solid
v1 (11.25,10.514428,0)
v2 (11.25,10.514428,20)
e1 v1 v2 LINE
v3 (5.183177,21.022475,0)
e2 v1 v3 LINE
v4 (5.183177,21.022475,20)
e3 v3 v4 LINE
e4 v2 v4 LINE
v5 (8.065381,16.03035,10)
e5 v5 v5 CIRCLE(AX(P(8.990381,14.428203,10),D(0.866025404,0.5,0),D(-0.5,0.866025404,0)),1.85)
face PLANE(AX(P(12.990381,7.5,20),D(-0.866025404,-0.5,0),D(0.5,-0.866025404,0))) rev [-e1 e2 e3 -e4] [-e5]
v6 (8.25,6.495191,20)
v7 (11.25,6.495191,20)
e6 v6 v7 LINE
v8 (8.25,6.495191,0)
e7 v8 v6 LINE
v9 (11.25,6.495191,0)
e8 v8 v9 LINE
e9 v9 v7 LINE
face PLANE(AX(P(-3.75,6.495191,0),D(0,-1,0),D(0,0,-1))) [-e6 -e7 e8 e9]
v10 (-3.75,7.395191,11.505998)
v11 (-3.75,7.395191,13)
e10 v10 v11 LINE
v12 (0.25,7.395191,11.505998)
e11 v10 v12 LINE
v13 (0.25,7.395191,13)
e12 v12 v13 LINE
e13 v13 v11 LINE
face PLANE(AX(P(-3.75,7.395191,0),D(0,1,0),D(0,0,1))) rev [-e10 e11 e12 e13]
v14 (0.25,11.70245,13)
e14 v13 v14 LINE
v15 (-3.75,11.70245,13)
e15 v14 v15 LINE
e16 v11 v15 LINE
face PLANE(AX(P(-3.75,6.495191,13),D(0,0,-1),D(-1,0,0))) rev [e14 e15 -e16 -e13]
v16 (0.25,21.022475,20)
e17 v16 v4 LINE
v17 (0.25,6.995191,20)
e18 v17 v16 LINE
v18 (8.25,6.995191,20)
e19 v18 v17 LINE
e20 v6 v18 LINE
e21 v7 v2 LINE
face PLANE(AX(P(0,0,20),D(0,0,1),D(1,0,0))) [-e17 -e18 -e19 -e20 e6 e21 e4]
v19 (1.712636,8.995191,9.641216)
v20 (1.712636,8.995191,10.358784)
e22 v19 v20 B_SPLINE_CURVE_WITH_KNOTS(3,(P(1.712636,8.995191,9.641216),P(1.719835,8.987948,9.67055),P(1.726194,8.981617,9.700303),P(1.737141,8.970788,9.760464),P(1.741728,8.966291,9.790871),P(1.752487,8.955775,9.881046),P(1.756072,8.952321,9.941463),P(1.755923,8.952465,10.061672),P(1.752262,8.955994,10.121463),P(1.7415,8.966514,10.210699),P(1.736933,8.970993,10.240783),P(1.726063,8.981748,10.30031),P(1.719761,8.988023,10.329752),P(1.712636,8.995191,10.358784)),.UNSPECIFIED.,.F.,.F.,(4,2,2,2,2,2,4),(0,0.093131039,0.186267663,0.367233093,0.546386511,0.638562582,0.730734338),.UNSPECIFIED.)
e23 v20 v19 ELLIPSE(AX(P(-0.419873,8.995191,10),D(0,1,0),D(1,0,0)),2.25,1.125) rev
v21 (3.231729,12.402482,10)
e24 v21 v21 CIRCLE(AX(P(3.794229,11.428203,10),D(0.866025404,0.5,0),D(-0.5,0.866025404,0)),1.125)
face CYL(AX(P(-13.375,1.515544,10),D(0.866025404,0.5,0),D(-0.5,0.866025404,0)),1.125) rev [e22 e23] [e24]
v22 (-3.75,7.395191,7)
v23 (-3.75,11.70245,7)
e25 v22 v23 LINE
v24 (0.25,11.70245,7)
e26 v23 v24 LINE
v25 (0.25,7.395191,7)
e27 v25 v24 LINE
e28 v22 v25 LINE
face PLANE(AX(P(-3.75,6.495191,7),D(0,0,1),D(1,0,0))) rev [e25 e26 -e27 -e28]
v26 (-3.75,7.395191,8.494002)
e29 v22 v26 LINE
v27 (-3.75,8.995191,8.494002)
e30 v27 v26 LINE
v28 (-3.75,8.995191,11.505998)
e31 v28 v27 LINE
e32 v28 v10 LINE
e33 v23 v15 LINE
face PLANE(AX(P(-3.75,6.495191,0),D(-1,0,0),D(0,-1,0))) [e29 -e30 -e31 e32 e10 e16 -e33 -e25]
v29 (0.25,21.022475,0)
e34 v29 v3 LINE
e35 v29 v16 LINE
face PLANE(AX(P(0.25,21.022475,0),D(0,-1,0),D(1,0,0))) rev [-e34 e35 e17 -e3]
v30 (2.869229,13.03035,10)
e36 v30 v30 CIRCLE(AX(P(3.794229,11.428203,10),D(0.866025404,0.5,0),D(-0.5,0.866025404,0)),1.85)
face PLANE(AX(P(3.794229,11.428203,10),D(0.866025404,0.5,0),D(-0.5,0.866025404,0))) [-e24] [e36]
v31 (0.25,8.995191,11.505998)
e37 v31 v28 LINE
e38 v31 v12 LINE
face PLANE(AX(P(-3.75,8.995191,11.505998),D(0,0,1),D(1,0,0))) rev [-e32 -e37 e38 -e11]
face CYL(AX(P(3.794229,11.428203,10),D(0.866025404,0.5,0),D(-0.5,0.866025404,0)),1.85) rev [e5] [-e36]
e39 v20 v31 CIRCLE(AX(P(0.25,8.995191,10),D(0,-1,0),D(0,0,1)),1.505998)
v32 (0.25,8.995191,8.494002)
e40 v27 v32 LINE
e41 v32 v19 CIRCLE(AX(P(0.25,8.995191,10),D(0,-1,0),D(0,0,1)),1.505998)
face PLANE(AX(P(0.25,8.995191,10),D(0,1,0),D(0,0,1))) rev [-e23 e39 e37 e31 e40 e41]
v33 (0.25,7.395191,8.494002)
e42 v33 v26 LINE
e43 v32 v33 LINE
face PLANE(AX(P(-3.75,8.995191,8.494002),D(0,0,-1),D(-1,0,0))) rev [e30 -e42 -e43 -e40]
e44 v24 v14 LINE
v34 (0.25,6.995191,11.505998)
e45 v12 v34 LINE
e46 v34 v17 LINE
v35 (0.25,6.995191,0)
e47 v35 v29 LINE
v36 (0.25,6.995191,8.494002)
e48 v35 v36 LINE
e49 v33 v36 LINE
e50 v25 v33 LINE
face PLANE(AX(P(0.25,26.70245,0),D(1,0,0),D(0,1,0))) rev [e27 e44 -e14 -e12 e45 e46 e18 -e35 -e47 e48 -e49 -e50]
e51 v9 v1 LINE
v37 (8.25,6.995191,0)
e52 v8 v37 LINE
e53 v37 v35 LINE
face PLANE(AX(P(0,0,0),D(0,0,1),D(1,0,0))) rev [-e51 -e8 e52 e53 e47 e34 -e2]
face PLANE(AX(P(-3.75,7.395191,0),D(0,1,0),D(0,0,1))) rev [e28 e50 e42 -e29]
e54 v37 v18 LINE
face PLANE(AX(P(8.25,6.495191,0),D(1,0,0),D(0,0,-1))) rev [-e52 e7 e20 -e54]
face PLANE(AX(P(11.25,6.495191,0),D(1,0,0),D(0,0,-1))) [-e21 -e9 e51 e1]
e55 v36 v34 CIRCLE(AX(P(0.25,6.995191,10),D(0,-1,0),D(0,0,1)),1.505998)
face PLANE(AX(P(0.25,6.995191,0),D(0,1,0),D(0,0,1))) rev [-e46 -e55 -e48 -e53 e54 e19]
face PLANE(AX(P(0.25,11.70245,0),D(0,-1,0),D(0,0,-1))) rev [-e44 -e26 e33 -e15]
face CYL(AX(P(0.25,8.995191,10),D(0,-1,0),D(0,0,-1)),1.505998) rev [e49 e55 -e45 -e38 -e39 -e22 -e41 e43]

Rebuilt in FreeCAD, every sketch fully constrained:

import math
import FreeCAD as App
import Part
import Sketcher
from FreeCAD import Vector
Q = App.Units.Quantity


def add_polygon(sketch, points):
    """Adds a closed chain of lines whose ends are joined by coincident constraints."""
    first, n = sketch.GeometryCount, len(points)
    for a, b in zip(points, points[1:] + points[:1]):
        sketch.addGeometry(Part.LineSegment(App.Vector(*a, 0), App.Vector(*b, 0)), False)
    for i in range(n):
        sketch.addConstraint(Sketcher.Constraint("Coincident", first + i, 2, first + (i + 1) % n, 1))

doc = App.newDocument("Part")
body = doc.addObject("PartDesign::Body", "Body")

# Sketch on XY plane
sketch1 = body.newObject("Sketcher::SketchObject", "Sketch")
sketch1.AttachmentSupport = (doc.getObject("XY_Plane"), [""])
sketch1.MapMode = "FlatFace"
add_polygon(sketch1, [(-12.5, 21.650635), (0, 0), (12.990381, 7.5), (0.490381, 29.150635)])  # lines 0-3
sketch1.addConstraint([
    Sketcher.Constraint("Coincident", 0, 2, -1, 1),
    Sketcher.Constraint("Perpendicular", 0, 1),
    Sketcher.Constraint("Perpendicular", 1, 2),
    Sketcher.Constraint("Perpendicular", 2, 3),
    Sketcher.Constraint("Angle", 0, Q("-60 deg")),
    Sketcher.Constraint("Distance", 0, Q("25 mm")),
    Sketcher.Constraint("Distance", 1, Q("15 mm")),
])
pad1 = body.newObject("PartDesign::Pad", "Pad")
pad1.Profile = sketch1
pad1.Length = 20

# Sketch on an angled plane
sketch2 = body.newObject("Sketcher::SketchObject", "Sketch001")
sketch2.Placement = App.Placement(Vector(12.990381, 7.5, 0), App.Rotation(Vector(0, 0, -1), Vector(-0.5, 0.866025404, 0), Vector(0.866025404, 0.5, 0), "ZXY"))
sketch2.addGeometry(Part.Circle(Vector(-10, 8, 0), Vector(0, 0, 1), 1.85), False)
sketch2.addConstraint([
    Sketcher.Constraint("Diameter", 0, Q("3.7 mm")),
    Sketcher.Constraint("DistanceX", 0, 3, -1, 1, Q("10 mm")),
    Sketcher.Constraint("DistanceY", -1, 1, 0, 3, Q("8 mm")),
])
pocket1 = body.newObject("PartDesign::Pocket", "Pocket")
pocket1.Profile = sketch2
pocket1.Length = 6

# Sketch on an angled plane
sketch3 = body.newObject("Sketcher::SketchObject", "Sketch002")
sketch3.Placement = App.Placement(Vector(7.794229, 4.5, 0), App.Rotation(Vector(0, 0, -1), Vector(-0.5, 0.866025404, 0), Vector(0.866025404, 0.5, 0), "ZXY"))
sketch3.addGeometry(Part.Circle(Vector(-10, 8, 0), Vector(0, 0, 1), 1.125), False)
sketch3.addConstraint([
    Sketcher.Constraint("Diameter", 0, Q("2.25 mm")),
    Sketcher.Constraint("DistanceX", 0, 3, -1, 1, Q("10 mm")),
    Sketcher.Constraint("DistanceY", -1, 1, 0, 3, Q("8 mm")),
])
pocket2 = body.newObject("PartDesign::Pocket", "Pocket001")
pocket2.Profile = sketch3
pocket2.Type = "ThroughAll"

# Sketch on XY plane
sketch4 = body.newObject("Sketcher::SketchObject", "Sketch003")
sketch4.AttachmentSupport = (doc.getObject("XY_Plane"), [""])
sketch4.MapMode = "FlatFace"
sketch4.AttachmentOffset = App.Placement(Vector(0, 0, 20), App.Rotation())
add_polygon(sketch4, [(-17.858, 34.509), (-17.858, -5.358), (18.348, -5.358), (18.348, 34.509)])  # lines 0-3
add_polygon(sketch4, [(11.25, 6.495191), (-3.75, 6.495191), (-3.75, 26.70245), (1.903841, 26.70245), (11.25, 10.514428)])  # lines 4-8
sketch4.addConstraint([
    Sketcher.Constraint("Vertical", 0),
    Sketcher.Constraint("Horizontal", 1),
    Sketcher.Constraint("Vertical", 2),
    Sketcher.Constraint("Horizontal", 3),
    Sketcher.Constraint("Horizontal", 4),
    Sketcher.Constraint("Vertical", 5),
    Sketcher.Constraint("Horizontal", 6),
    Sketcher.Constraint("Vertical", 8),
    Sketcher.Constraint("DistanceX", 4, 2, 4, 1, Q("15 mm")),
    Sketcher.Constraint("Angle", 7, Q("-60 deg")),
    Sketcher.Constraint("DistanceX", 1, 1, 1, 2, Q("36.206 mm")),
    Sketcher.Constraint("DistanceY", 0, 2, 0, 1, Q("39.867 mm")),
    Sketcher.Constraint("DistanceX", 4, 2, -1, 1, Q("3.75 mm")),
    Sketcher.Constraint("DistanceX", 0, 2, -1, 1, Q("17.858 mm")),
    Sketcher.Constraint("DistanceY", 0, 2, -1, 1, Q("5.358 mm")),
    Sketcher.Constraint("DistanceX", 6, 1, 6, 2, Q("5.653841 mm")),
    Sketcher.Constraint("DistanceY", 5, 1, 5, 2, Q("20.207259 mm")),
    Sketcher.Constraint("DistanceY", -1, 1, 4, 2, Q("6.495191 mm")),
])
pocket3 = body.newObject("PartDesign::Pocket", "Pocket002")
pocket3.Profile = sketch4
pocket3.Type = "ThroughAll"

# Sketch on XY plane
sketch5 = body.newObject("Sketcher::SketchObject", "Sketch004")
sketch5.AttachmentSupport = (doc.getObject("XY_Plane"), [""])
sketch5.MapMode = "FlatFace"
sketch5.AttachmentOffset = App.Placement(Vector(0, 0, 20), App.Rotation())
add_polygon(sketch5, [(-3.75, 26.70245), (-3.75, 11.70245), (0.25, 11.70245), (0.25, 26.70245)])  # lines 0-3
add_polygon(sketch5, [(-3.75, 7.395191), (-3.75, 6.495191), (0.25, 6.495191), (0.25, 7.395191)])  # lines 4-7
sketch5.addConstraint([
    Sketcher.Constraint("Vertical", 0),
    Sketcher.Constraint("Horizontal", 1),
    Sketcher.Constraint("Vertical", 2),
    Sketcher.Constraint("Horizontal", 3),
    Sketcher.Constraint("Vertical", 4),
    Sketcher.Constraint("Horizontal", 5),
    Sketcher.Constraint("Vertical", 6),
    Sketcher.Constraint("Horizontal", 7),
    Sketcher.Constraint("Vertical", 3, 2, 4, 2),
    Sketcher.Constraint("Vertical", 2, 2, 5, 2),
    Sketcher.Constraint("DistanceX", 1, 1, 1, 2, Q("4 mm")),
    Sketcher.Constraint("DistanceY", 0, 2, 0, 1, Q("15 mm")),
    Sketcher.Constraint("DistanceY", 4, 2, 4, 1, Q("0.9 mm")),
    Sketcher.Constraint("DistanceX", 0, 2, -1, 1, Q("3.75 mm")),
    Sketcher.Constraint("DistanceY", -1, 1, 0, 2, Q("11.70245 mm")),
    Sketcher.Constraint("DistanceY", -1, 1, 4, 2, Q("6.495191 mm")),
])
pocket4 = body.newObject("PartDesign::Pocket", "Pocket003")
pocket4.Profile = sketch5
pocket4.Type = "ThroughAll"

# Sketch on XZ plane
sketch6 = body.newObject("Sketcher::SketchObject", "Sketch005")
sketch6.AttachmentSupport = (doc.getObject("XZ_Plane"), [""])
sketch6.MapMode = "FlatFace"
sketch6.AttachmentOffset = App.Placement(Vector(0, 0, -11.70245), App.Rotation())
add_polygon(sketch6, [(-3.75, 13), (-3.75, 20), (0.25, 20), (0.25, 13)])  # lines 0-3
add_polygon(sketch6, [(-3.75, 0), (-3.75, 7), (0.25, 7), (0.25, 0)])  # lines 4-7
sketch6.addConstraint([
    Sketcher.Constraint("Vertical", 0),
    Sketcher.Constraint("Horizontal", 1),
    Sketcher.Constraint("Vertical", 2),
    Sketcher.Constraint("Horizontal", 3),
    Sketcher.Constraint("Vertical", 4),
    Sketcher.Constraint("Horizontal", 5),
    Sketcher.Constraint("Vertical", 6),
    Sketcher.Constraint("Horizontal", 7),
    Sketcher.Constraint("PointOnObject", 6, 2, -1),
    Sketcher.Constraint("Vertical", 3, 2, 4, 2),
    Sketcher.Constraint("Vertical", 2, 2, 5, 2),
    Sketcher.Constraint("Equal", 2, 4),
    Sketcher.Constraint("DistanceX", 1, 1, 1, 2, Q("4 mm")),
    Sketcher.Constraint("DistanceY", 0, 1, 0, 2, Q("7 mm")),
    Sketcher.Constraint("DistanceY", -1, 1, 0, 2, Q("20 mm")),
    Sketcher.Constraint("DistanceX", 0, 2, -1, 1, Q("3.75 mm")),
])
pocket5 = body.newObject("PartDesign::Pocket", "Pocket004")
pocket5.Profile = sketch6
pocket5.Type = "ThroughAll"
pocket5.Reversed = True

# Sketch on XY plane
sketch7 = body.newObject("Sketcher::SketchObject", "Sketch006")
sketch7.AttachmentSupport = (doc.getObject("XY_Plane"), [""])
sketch7.MapMode = "FlatFace"
sketch7.AttachmentOffset = App.Placement(Vector(0, 0, 20), App.Rotation())
add_polygon(sketch7, [(0.25, 21.022475), (5.183177, 21.022475), (1.903841, 26.70245), (0.25, 26.70245)])  # lines 0-3
add_polygon(sketch7, [(0.25, 6.995191), (0.25, 6.495191), (8.25, 6.495191), (8.25, 6.995191)])  # lines 4-7
sketch7.addConstraint([
    Sketcher.Constraint("Horizontal", 0),
    Sketcher.Constraint("Horizontal", 2),
    Sketcher.Constraint("Vertical", 3),
    Sketcher.Constraint("Vertical", 4),
    Sketcher.Constraint("Horizontal", 5),
    Sketcher.Constraint("Vertical", 6),
    Sketcher.Constraint("Horizontal", 7),
    Sketcher.Constraint("Vertical", 3, 2, 4, 2),
    Sketcher.Constraint("DistanceX", 5, 1, 5, 2, Q("8 mm")),
    Sketcher.Constraint("Angle", 1, Q("120 deg")),
    Sketcher.Constraint("DistanceY", 4, 2, 4, 1, Q("0.5 mm")),
    Sketcher.Constraint("DistanceX", -1, 1, 2, 2, Q("0.25 mm")),
    Sketcher.Constraint("DistanceX", 2, 2, 2, 1, Q("1.653841 mm")),
    Sketcher.Constraint("Distance", 1, Q("6.558671 mm")),
    Sketcher.Constraint("DistanceY", -1, 1, 1, 2, Q("26.70245 mm")),
    Sketcher.Constraint("DistanceY", -1, 1, 4, 2, Q("6.495191 mm")),
])
pocket6 = body.newObject("PartDesign::Pocket", "Pocket005")
pocket6.Profile = sketch7
pocket6.Type = "ThroughAll"

# Sketch on XZ plane
sketch8 = body.newObject("Sketcher::SketchObject", "Sketch007")
sketch8.AttachmentSupport = (doc.getObject("XZ_Plane"), [""])
sketch8.MapMode = "FlatFace"
sketch8.AttachmentOffset = App.Placement(Vector(0, 0, -6.995191), App.Rotation())
sketch8.addGeometry([
    Part.LineSegment(Vector(0.25, 11.505998, 0), Vector(-3.75, 11.505998, 0)),
    Part.LineSegment(Vector(-3.75, 11.505998, 0), Vector(-3.75, 8.494002, 0)),
    Part.LineSegment(Vector(-3.75, 8.494002, 0), Vector(0.25, 8.494002, 0)),
    Part.ArcOfCircle(Part.Circle(Vector(0.25, 10, 0), Vector(0, 0, 1), 1.505998), math.radians(-90), math.radians(90)),
], False)
sketch8.addConstraint([
    Sketcher.Constraint("Coincident", 0, 2, 1, 1),
    Sketcher.Constraint("Coincident", 1, 2, 2, 1),
    Sketcher.Constraint("Tangent", 2, 2, 3, 1),
    Sketcher.Constraint("Tangent", 3, 2, 0, 1),
    Sketcher.Constraint("Horizontal", 0),
    Sketcher.Constraint("Vertical", 1),
    Sketcher.Constraint("Horizontal", 2),
    Sketcher.Constraint("DistanceX", 0, 2, 0, 1, Q("4 mm")),
    Sketcher.Constraint("DistanceY", -1, 1, 3, 3, Q("10 mm")),
    Sketcher.Constraint("Radius", 3, Q("1.505998 mm")),
    Sketcher.Constraint("DistanceX", -1, 1, 3, 3, Q("0.25 mm")),
])
pocket7 = body.newObject("PartDesign::Pocket", "Pocket006")
pocket7.Profile = sketch8
pocket7.Length = 2

doc.recompute()
